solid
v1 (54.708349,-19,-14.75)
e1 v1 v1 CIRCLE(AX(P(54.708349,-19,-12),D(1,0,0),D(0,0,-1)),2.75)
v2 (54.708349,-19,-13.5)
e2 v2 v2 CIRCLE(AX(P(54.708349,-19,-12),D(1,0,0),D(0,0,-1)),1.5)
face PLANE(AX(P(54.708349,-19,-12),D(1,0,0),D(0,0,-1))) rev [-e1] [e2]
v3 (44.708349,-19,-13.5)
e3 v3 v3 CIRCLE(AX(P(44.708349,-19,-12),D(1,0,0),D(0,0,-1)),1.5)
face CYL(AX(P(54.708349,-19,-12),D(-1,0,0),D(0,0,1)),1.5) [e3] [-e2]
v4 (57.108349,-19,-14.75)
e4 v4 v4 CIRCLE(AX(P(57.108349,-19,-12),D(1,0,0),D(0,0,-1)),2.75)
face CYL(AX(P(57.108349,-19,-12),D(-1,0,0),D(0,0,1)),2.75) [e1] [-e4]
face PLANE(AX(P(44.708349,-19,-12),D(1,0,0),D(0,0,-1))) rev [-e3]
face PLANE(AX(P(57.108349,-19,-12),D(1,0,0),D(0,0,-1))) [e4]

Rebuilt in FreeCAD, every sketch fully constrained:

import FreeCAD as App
import Part
import Sketcher
from FreeCAD import Vector
Q = App.Units.Quantity

doc = App.newDocument("Part")
body = doc.addObject("PartDesign::Body", "Body")

# Sketch on YZ plane
sketch1 = body.newObject("Sketcher::SketchObject", "Sketch")
sketch1.AttachmentSupport = (doc.getObject("YZ_Plane"), [""])
sketch1.MapMode = "FlatFace"
sketch1.AttachmentOffset = App.Placement(Vector(0, 0, 44.708349), App.Rotation())
sketch1.addGeometry(Part.Circle(Vector(-19, -12, 0), Vector(0, 0, 1), 1.5), False)
sketch1.addConstraint([
    Sketcher.Constraint("Diameter", 0, Q("3 mm")),
    Sketcher.Constraint("DistanceX", 0, 3, -1, 1, Q("19 mm")),
    Sketcher.Constraint("DistanceY", 0, 3, -1, 1, Q("12 mm")),
])
pad1 = body.newObject("PartDesign::Pad", "Pad")
pad1.Profile = sketch1
pad1.Length = 10

# Sketch on YZ plane
sketch2 = body.newObject("Sketcher::SketchObject", "Sketch001")
sketch2.AttachmentSupport = (doc.getObject("YZ_Plane"), [""])
sketch2.MapMode = "FlatFace"
sketch2.AttachmentOffset = App.Placement(Vector(0, 0, 54.708349), App.Rotation())
sketch2.addGeometry(Part.Circle(Vector(-19, -12, 0), Vector(0, 0, 1), 2.75), False)
sketch2.addConstraint([
    Sketcher.Constraint("Diameter", 0, Q("5.5 mm")),
    Sketcher.Constraint("DistanceX", 0, 3, -1, 1, Q("19 mm")),
    Sketcher.Constraint("DistanceY", 0, 3, -1, 1, Q("12 mm")),
])
pad2 = body.newObject("PartDesign::Pad", "Pad001")
pad2.Profile = sketch2
pad2.Length = 2.4

doc.recompute()
